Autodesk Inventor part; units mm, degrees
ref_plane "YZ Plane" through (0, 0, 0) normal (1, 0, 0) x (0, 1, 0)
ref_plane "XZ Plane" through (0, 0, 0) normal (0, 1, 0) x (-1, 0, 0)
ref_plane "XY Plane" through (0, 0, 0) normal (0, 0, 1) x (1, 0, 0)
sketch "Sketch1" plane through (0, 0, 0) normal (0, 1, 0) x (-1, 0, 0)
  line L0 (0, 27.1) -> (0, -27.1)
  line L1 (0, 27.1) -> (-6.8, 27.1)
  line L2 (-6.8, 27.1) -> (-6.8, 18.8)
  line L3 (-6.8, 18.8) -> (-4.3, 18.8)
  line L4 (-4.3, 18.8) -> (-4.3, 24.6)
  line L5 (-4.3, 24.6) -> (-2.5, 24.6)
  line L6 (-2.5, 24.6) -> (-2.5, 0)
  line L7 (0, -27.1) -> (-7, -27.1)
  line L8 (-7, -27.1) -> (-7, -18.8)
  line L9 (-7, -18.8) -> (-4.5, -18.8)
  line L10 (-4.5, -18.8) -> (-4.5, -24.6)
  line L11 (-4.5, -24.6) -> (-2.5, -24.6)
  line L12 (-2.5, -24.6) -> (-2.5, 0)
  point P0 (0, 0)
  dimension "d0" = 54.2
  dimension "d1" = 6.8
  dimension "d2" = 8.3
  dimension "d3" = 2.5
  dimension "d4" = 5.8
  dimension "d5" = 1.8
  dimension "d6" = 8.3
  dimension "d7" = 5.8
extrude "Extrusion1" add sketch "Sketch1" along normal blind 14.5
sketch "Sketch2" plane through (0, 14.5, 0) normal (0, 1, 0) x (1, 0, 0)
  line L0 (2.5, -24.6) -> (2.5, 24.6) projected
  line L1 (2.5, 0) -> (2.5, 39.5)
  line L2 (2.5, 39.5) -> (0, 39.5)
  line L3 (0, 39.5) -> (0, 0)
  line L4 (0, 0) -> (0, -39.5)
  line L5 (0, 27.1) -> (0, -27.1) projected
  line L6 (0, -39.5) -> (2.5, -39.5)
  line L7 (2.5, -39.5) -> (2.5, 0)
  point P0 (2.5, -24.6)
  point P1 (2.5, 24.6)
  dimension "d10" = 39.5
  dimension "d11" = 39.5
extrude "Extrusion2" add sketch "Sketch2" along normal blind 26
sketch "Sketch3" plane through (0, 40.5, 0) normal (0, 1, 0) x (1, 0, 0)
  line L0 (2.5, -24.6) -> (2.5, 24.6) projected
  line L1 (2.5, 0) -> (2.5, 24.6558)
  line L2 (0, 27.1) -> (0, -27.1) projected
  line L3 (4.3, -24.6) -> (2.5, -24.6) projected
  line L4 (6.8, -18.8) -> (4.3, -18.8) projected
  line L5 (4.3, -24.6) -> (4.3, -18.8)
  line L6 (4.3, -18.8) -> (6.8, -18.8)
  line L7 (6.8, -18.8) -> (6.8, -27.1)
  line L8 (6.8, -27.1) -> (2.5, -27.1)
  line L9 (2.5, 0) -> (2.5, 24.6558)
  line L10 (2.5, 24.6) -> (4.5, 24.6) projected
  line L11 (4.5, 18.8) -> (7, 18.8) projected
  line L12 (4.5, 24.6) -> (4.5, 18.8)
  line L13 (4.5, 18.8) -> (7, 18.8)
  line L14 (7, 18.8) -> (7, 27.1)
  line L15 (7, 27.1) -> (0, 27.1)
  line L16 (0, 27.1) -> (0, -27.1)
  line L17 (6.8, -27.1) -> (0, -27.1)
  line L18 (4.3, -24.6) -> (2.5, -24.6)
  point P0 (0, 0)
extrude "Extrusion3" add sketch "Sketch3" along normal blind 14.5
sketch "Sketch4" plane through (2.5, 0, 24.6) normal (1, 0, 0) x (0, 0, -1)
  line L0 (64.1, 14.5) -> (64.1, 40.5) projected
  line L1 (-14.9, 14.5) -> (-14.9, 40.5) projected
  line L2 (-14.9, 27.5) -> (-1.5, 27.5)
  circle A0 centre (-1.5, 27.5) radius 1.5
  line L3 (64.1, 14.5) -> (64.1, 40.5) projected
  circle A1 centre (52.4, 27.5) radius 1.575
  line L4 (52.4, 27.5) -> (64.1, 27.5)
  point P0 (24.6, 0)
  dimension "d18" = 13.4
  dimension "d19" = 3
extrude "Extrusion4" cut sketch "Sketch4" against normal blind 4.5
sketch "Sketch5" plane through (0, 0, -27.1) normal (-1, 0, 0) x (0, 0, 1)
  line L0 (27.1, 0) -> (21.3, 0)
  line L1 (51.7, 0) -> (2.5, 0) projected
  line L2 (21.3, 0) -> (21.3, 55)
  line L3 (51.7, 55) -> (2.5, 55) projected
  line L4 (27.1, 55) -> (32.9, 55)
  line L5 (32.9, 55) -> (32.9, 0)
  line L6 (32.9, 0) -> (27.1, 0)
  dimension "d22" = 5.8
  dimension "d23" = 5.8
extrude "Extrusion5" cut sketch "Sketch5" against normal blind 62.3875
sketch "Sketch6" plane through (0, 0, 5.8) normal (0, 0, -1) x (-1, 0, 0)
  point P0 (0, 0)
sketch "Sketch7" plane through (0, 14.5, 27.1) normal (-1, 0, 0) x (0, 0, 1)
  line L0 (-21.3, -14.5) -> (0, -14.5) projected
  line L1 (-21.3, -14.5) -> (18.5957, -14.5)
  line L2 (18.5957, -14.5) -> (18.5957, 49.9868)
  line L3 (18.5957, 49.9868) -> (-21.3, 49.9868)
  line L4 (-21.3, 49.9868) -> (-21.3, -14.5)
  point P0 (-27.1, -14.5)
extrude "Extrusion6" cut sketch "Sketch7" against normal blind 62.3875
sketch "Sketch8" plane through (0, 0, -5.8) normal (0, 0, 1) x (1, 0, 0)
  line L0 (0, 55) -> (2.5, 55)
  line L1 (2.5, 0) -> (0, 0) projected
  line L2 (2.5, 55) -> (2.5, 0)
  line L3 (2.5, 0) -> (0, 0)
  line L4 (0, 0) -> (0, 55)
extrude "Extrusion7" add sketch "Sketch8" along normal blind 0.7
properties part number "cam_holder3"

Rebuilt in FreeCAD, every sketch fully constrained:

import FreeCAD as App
import Part
import Sketcher
from FreeCAD import Vector

doc = App.newDocument("Part")
params = doc.addObject("Spreadsheet::Sheet", "Params")
for row, (alias, value) in enumerate([
    ("sketch1_width", "6.8 mm"),
    ("sketch1_width2", "2.5 mm"),
    ("sketch1_width3", "1.8 mm"),
    ("sketch1_height", "54.2 mm"),
    ("sketch1_height2", "8.3 mm"),
    ("pad1_length", "14.5 mm"),
    ("sketch2_width", "2.5 mm"),
    ("pad2_length", "26 mm"),
    ("sketch3_width", "2 mm"),
    ("sketch3_width2", "7 mm"),
    ("sketch3_width3", "1.8 mm"),
    ("sketch3_width4", "2.5 mm"),
    ("sketch3_height", "49.2 mm"),
    ("pad3_length", "14.5 mm"),
    ("sketch4_diameter", "3 mm"),
    ("sketch4_diameter2", "3.15 mm"),
    ("pocket1_length", "4.5 mm"),
    ("sketch5_width", "55 mm"),
    ("pocket2_length", "62.3875 mm"),
    ("pocket3_length", "62.3875 mm"),
    ("sketch7_height", "55 mm"),
    ("sketch7_width", "2.5 mm"),
    ("pad4_length", "0.7 mm"),
], start=1):
    params.set(f"A{row}", alias)
    params.set(f"B{row}", "=" + value)
    params.setAlias(f"B{row}", alias)

body = doc.addObject("PartDesign::Body", "Body")
body.AllowCompound = True

sketch1 = body.newObject("Sketcher::SketchObject", "Sketch")
sketch1.AttachmentSupport = (doc.getObject("XZ_Plane"), [""])
sketch1.MapMode = "FlatFace"
sketch1.addGeometry([
    Part.LineSegment(Vector(0, -27.1, 0), Vector(0, 27.1, 0)),
    Part.LineSegment(Vector(0, 27.1, 0), Vector(6.8, 27.1, 0)),
    Part.LineSegment(Vector(6.8, 27.1, 0), Vector(6.8, 18.8, 0)),
    Part.LineSegment(Vector(6.8, 18.8, 0), Vector(4.3, 18.8, 0)),
    Part.LineSegment(Vector(4.3, 18.8, 0), Vector(4.3, 24.6, 0)),
    Part.LineSegment(Vector(4.3, 24.6, 0), Vector(2.5, 24.6, 0)),
    Part.LineSegment(Vector(2.5, 24.6, 0), Vector(2.5, -24.6, 0)),
    Part.LineSegment(Vector(2.5, -24.6, 0), Vector(4.5, -24.6, 0)),
    Part.LineSegment(Vector(4.5, -24.6, 0), Vector(4.5, -18.8, 0)),
    Part.LineSegment(Vector(4.5, -18.8, 0), Vector(7, -18.8, 0)),
    Part.LineSegment(Vector(7, -18.8, 0), Vector(7, -27.1, 0)),
    Part.LineSegment(Vector(7, -27.1, 0), Vector(0, -27.1, 0)),
], False)
sketch1.addConstraint([
    Sketcher.Constraint("Coincident", 0, 2, 1, 1),
    Sketcher.Constraint("Coincident", 1, 2, 2, 1),
    Sketcher.Constraint("Coincident", 2, 2, 3, 1),
    Sketcher.Constraint("Coincident", 3, 2, 4, 1),
    Sketcher.Constraint("Coincident", 4, 2, 5, 1),
    Sketcher.Constraint("Coincident", 5, 2, 6, 1),
    Sketcher.Constraint("Coincident", 6, 2, 7, 1),
    Sketcher.Constraint("Coincident", 7, 2, 8, 1),
    Sketcher.Constraint("Coincident", 8, 2, 9, 1),
    Sketcher.Constraint("Coincident", 9, 2, 10, 1),
    Sketcher.Constraint("Coincident", 10, 2, 11, 1),
    Sketcher.Constraint("Coincident", 11, 2, 0, 1),
    Sketcher.Constraint("Vertical", 0),
    Sketcher.Constraint("Horizontal", 1),
    Sketcher.Constraint("Vertical", 2),
    Sketcher.Constraint("Horizontal", 3),
    Sketcher.Constraint("Vertical", 4),
    Sketcher.Constraint("Horizontal", 5),
    Sketcher.Constraint("Vertical", 6),
    Sketcher.Constraint("Horizontal", 7),
    Sketcher.Constraint("Vertical", 8),
    Sketcher.Constraint("Horizontal", 9),
    Sketcher.Constraint("Vertical", 10),
    Sketcher.Constraint("Horizontal", 11),
    Sketcher.Constraint("Symmetric", 0, 2, 11, 2, -1, 1),
    Sketcher.Constraint("Equal", 3, 9),
    Sketcher.Constraint("Equal", 4, 8),
    Sketcher.Constraint("Equal", 2, 10),
    Sketcher.Constraint("DistanceX", 1, 1, 1, 2, 6.8),
    Sketcher.Constraint("DistanceX", 3, 2, 3, 1, 2.5),
    Sketcher.Constraint("DistanceX", 5, 2, 5, 1, 1.8),
    Sketcher.Constraint("DistanceY", 0, 1, 0, 2, 54.2),
    Sketcher.Constraint("DistanceY", 2, 2, 2, 1, 8.3),
    Sketcher.Constraint("DistanceY", 4, 1, 4, 2, 5.8),
    Sketcher.Constraint("DistanceX", 7, 1, 7, 2, 2.0),
])
sketch1.setExpression("Constraints[28]", "Params.sketch1_width")
sketch1.setExpression("Constraints[29]", "Params.sketch1_width2")
sketch1.setExpression("Constraints[30]", "Params.sketch1_width3")
sketch1.setExpression("Constraints[31]", "Params.sketch1_height")
sketch1.setExpression("Constraints[32]", "Params.sketch1_height2")
pad1 = body.newObject("PartDesign::Pad", "Pad")
pad1.Profile = sketch1
pad1.setExpression("Length", "Params.pad1_length")
pad1.Reversed = True

sketch2 = body.newObject("Sketcher::SketchObject", "Sketch001")
sketch2.AttachmentSupport = (doc.getObject("XZ_Plane"), [""])
sketch2.MapMode = "FlatFace"
sketch2.AttachmentOffset = App.Placement(Vector(0, 0, -14.5), App.Rotation())
sketch2.addGeometry([
    Part.LineSegment(Vector(2.5, 39.5, 0), Vector(2.5, -39.5, 0)),
    Part.LineSegment(Vector(2.5, -39.5, 0), Vector(0, -39.5, 0)),
    Part.LineSegment(Vector(0, -39.5, 0), Vector(0, 39.5, 0)),
    Part.LineSegment(Vector(0, 39.5, 0), Vector(2.5, 39.5, 0)),
], False)
sketch2.addConstraint([
    Sketcher.Constraint("Coincident", 0, 2, 1, 1),
    Sketcher.Constraint("Coincident", 1, 2, 2, 1),
    Sketcher.Constraint("Coincident", 2, 2, 3, 1),
    Sketcher.Constraint("Coincident", 3, 2, 0, 1),
    Sketcher.Constraint("Vertical", 0),
    Sketcher.Constraint("Horizontal", 1),
    Sketcher.Constraint("Vertical", 2),
    Sketcher.Constraint("Horizontal", 3),
    Sketcher.Constraint("Symmetric", 1, 2, 2, 2, -1, 1),
    Sketcher.Constraint("DistanceY", 0, 2, -1, 1, 39.5),
    Sketcher.Constraint("DistanceX", 1, 2, 1, 1, 2.5),
])
sketch2.setExpression("Constraints[10]", "Params.sketch2_width")
pad2 = body.newObject("PartDesign::Pad", "Pad001")
pad2.Profile = sketch2
pad2.setExpression("Length", "Params.pad2_length")
pad2.Reversed = True

sketch3 = body.newObject("Sketcher::SketchObject", "Sketch002")
sketch3.AttachmentSupport = (doc.getObject("XZ_Plane"), [""])
sketch3.MapMode = "FlatFace"
sketch3.AttachmentOffset = App.Placement(Vector(0, 0, -40.5), App.Rotation())
sketch3.addGeometry([
    Part.LineSegment(Vector(4.3, 24.6, 0), Vector(2.5, 24.6, 0)),
    Part.LineSegment(Vector(2.5, 24.6, 0), Vector(2.5, -24.6, 0)),
    Part.LineSegment(Vector(2.5, -24.6, 0), Vector(4.5, -24.6, 0)),
    Part.LineSegment(Vector(4.5, -24.6, 0), Vector(4.5, -18.8, 0)),
    Part.LineSegment(Vector(4.5, -18.8, 0), Vector(7, -18.8, 0)),
    Part.LineSegment(Vector(7, -18.8, 0), Vector(7, -27.1, 0)),
    Part.LineSegment(Vector(7, -27.1, 0), Vector(0, -27.1, 0)),
    Part.LineSegment(Vector(0, -27.1, 0), Vector(0, 27.1, 0)),
    Part.LineSegment(Vector(0, 27.1, 0), Vector(6.8, 27.1, 0)),
    Part.LineSegment(Vector(6.8, 27.1, 0), Vector(6.8, 18.8, 0)),
    Part.LineSegment(Vector(6.8, 18.8, 0), Vector(4.3, 18.8, 0)),
    Part.LineSegment(Vector(4.3, 18.8, 0), Vector(4.3, 24.6, 0)),
], False)
sketch3.addConstraint([
    Sketcher.Constraint("Coincident", 0, 2, 1, 1),
    Sketcher.Constraint("Coincident", 1, 2, 2, 1),
    Sketcher.Constraint("Coincident", 2, 2, 3, 1),
    Sketcher.Constraint("Coincident", 3, 2, 4, 1),
    Sketcher.Constraint("Coincident", 4, 2, 5, 1),
    Sketcher.Constraint("Coincident", 5, 2, 6, 1),
    Sketcher.Constraint("Coincident", 6, 2, 7, 1),
    Sketcher.Constraint("Coincident", 7, 2, 8, 1),
    Sketcher.Constraint("Coincident", 8, 2, 9, 1),
    Sketcher.Constraint("Coincident", 9, 2, 10, 1),
    Sketcher.Constraint("Coincident", 10, 2, 11, 1),
    Sketcher.Constraint("Coincident", 11, 2, 0, 1),
    Sketcher.Constraint("Horizontal", 0),
    Sketcher.Constraint("Vertical", 1),
    Sketcher.Constraint("Horizontal", 2),
    Sketcher.Constraint("Vertical", 3),
    Sketcher.Constraint("Horizontal", 4),
    Sketcher.Constraint("Vertical", 5),
    Sketcher.Constraint("Horizontal", 6),
    Sketcher.Constraint("Vertical", 7),
    Sketcher.Constraint("Horizontal", 8),
    Sketcher.Constraint("Vertical", 9),
    Sketcher.Constraint("Horizontal", 10),
    Sketcher.Constraint("Vertical", 11),
    Sketcher.Constraint("Symmetric", 6, 2, 7, 2, -1, 1),
    Sketcher.Constraint("Equal", 4, 10),
    Sketcher.Constraint("Equal", 5, 9),
    Sketcher.Constraint("Equal", 3, 11),
    Sketcher.Constraint("DistanceX", 2, 1, 2, 2, 2.0),
    Sketcher.Constraint("DistanceX", 6, 2, 6, 1, 7.0),
    Sketcher.Constraint("DistanceX", 0, 2, 0, 1, 1.8),
    Sketcher.Constraint("DistanceX", 4, 1, 4, 2, 2.5),
    Sketcher.Constraint("DistanceY", 1, 2, 1, 1, 49.2),
    Sketcher.Constraint("DistanceY", 3, 1, 3, 2, 5.8),
    Sketcher.Constraint("DistanceY", 5, 2, 5, 1, 8.3),
])
sketch3.setExpression("Constraints[28]", "Params.sketch3_width")
sketch3.setExpression("Constraints[29]", "Params.sketch3_width2")
sketch3.setExpression("Constraints[30]", "Params.sketch3_width3")
sketch3.setExpression("Constraints[31]", "Params.sketch3_width4")
sketch3.setExpression("Constraints[32]", "Params.sketch3_height")
pad3 = body.newObject("PartDesign::Pad", "Pad002")
pad3.Profile = sketch3
pad3.setExpression("Length", "Params.pad3_length")
pad3.Reversed = True

sketch4 = body.newObject("Sketcher::SketchObject", "Sketch003")
sketch4.AttachmentSupport = (doc.getObject("YZ_Plane"), [""])
sketch4.MapMode = "FlatFace"
sketch4.AttachmentOffset = App.Placement(Vector(0, 0, 2.5), App.Rotation())
sketch4.addGeometry([
    Part.Circle(Vector(27.5, 26.1, 0), Vector(0, 0, 1), 1.5),
    Part.Circle(Vector(27.5, -27.8, 0), Vector(0, 0, 1), 1.6),
], False)
sketch4.addConstraint([
    Sketcher.Constraint("Vertical", 0, 3, 1, 3),
    Sketcher.Constraint("Diameter", 0, 3.0),
    Sketcher.Constraint("Diameter", 1, 3.15),
    Sketcher.Constraint("DistanceX", -1, 1, 0, 3, 27.5),
    Sketcher.Constraint("DistanceY", -1, 1, 0, 3, 26.1),
    Sketcher.Constraint("DistanceY", 1, 3, -1, 1, 27.8),
])
sketch4.setExpression("Constraints[1]", "Params.sketch4_diameter")
sketch4.setExpression("Constraints[2]", "Params.sketch4_diameter2")
pocket1 = body.newObject("PartDesign::Pocket", "Pocket")
pocket1.Profile = sketch4
pocket1.setExpression("Length", "Params.pocket1_length")

sketch5 = body.newObject("Sketcher::SketchObject", "Sketch004")
sketch5.AttachmentSupport = (doc.getObject("YZ_Plane"), [""])
sketch5.MapMode = "FlatFace"
sketch5.addGeometry([
    Part.LineSegment(Vector(0, -6, 0), Vector(0, 6, 0)),
    Part.LineSegment(Vector(0, 6, 0), Vector(55, 6, 0)),
    Part.LineSegment(Vector(55, 6, 0), Vector(55, -6, 0)),
    Part.LineSegment(Vector(55, -6, 0), Vector(0, -6, 0)),
], False)
sketch5.addConstraint([
    Sketcher.Constraint("Coincident", 0, 2, 1, 1),
    Sketcher.Constraint("Coincident", 1, 2, 2, 1),
    Sketcher.Constraint("Coincident", 2, 2, 3, 1),
    Sketcher.Constraint("Coincident", 3, 2, 0, 1),
    Sketcher.Constraint("Vertical", 0),
    Sketcher.Constraint("Horizontal", 1),
    Sketcher.Constraint("Vertical", 2),
    Sketcher.Constraint("Horizontal", 3),
    Sketcher.Constraint("Symmetric", 0, 2, 3, 2, -1, 1),
    Sketcher.Constraint("DistanceY", -1, 1, 0, 2, 5.8),
    Sketcher.Constraint("DistanceX", 1, 1, 1, 2, 55.0),
])
sketch5.setExpression("Constraints[10]", "Params.sketch5_width")
pocket2 = body.newObject("PartDesign::Pocket", "Pocket001")
pocket2.Profile = sketch5
pocket2.setExpression("Length", "Params.pocket2_length")
pocket2.Reversed = True

sketch6 = body.newObject("Sketcher::SketchObject", "Sketch005")
sketch6.AttachmentSupport = (doc.getObject("YZ_Plane"), [""])
sketch6.MapMode = "FlatFace"
sketch6.addGeometry([
    Part.LineSegment(Vector(64, 6, 0), Vector(0, 6, 0)),
    Part.LineSegment(Vector(0, 6, 0), Vector(0, 46, 0)),
    Part.LineSegment(Vector(0, 46, 0), Vector(64, 46, 0)),
    Part.LineSegment(Vector(64, 46, 0), Vector(64, 6, 0)),
], False)
sketch6.addConstraint([
    Sketcher.Constraint("Coincident", 0, 2, 1, 1),
    Sketcher.Constraint("Coincident", 1, 2, 2, 1),
    Sketcher.Constraint("Coincident", 2, 2, 3, 1),
    Sketcher.Constraint("Coincident", 3, 2, 0, 1),
    Sketcher.Constraint("Horizontal", 0),
    Sketcher.Constraint("Vertical", 1),
    Sketcher.Constraint("Horizontal", 2),
    Sketcher.Constraint("Vertical", 3),
    Sketcher.Constraint("PointOnObject", 0, 2, -2),
    Sketcher.Constraint("DistanceY", -1, 1, 0, 2, 5.8),
    Sketcher.Constraint("DistanceX", 0, 2, 0, 1, 64.4868),
    Sketcher.Constraint("DistanceY", 1, 1, 1, 2, 39.8957),
])
pocket3 = body.newObject("PartDesign::Pocket", "Pocket002")
pocket3.Profile = sketch6
pocket3.setExpression("Length", "Params.pocket3_length")
pocket3.Reversed = True

sketch7 = body.newObject("Sketcher::SketchObject", "Sketch006")
sketch7.AttachmentSupport = (doc.getObject("XY_Plane"), [""])
sketch7.MapMode = "FlatFace"
sketch7.AttachmentOffset = App.Placement(Vector(0, 0, -5.8), App.Rotation())
sketch7.addGeometry([
    Part.LineSegment(Vector(2.5, 55, 0), Vector(0, 55, 0)),
    Part.LineSegment(Vector(0, 55, 0), Vector(0, 0, 0)),
    Part.LineSegment(Vector(0, 0, 0), Vector(2.5, 0, 0)),
    Part.LineSegment(Vector(2.5, 0, 0), Vector(2.5, 55, 0)),
], False)
sketch7.addConstraint([
    Sketcher.Constraint("Coincident", 0, 2, 1, 1),
    Sketcher.Constraint("Coincident", 1, 2, 2, 1),
    Sketcher.Constraint("Coincident", 2, 2, 3, 1),
    Sketcher.Constraint("Coincident", 3, 2, 0, 1),
    Sketcher.Constraint("Horizontal", 0),
    Sketcher.Constraint("Vertical", 1),
    Sketcher.Constraint("Horizontal", 2),
    Sketcher.Constraint("Vertical", 3),
    Sketcher.Constraint("Coincident", 1, 2, -1, 1),
    Sketcher.Constraint("DistanceY", 1, 2, 1, 1, 55.0),
    Sketcher.Constraint("DistanceX", 0, 2, 0, 1, 2.5),
])
sketch7.setExpression("Constraints[9]", "Params.sketch7_height")
sketch7.setExpression("Constraints[10]", "Params.sketch7_width")
pad4 = body.newObject("PartDesign::Pad", "Pad003")
pad4.Profile = sketch7
pad4.setExpression("Length", "Params.pad4_length")

doc.recompute()
